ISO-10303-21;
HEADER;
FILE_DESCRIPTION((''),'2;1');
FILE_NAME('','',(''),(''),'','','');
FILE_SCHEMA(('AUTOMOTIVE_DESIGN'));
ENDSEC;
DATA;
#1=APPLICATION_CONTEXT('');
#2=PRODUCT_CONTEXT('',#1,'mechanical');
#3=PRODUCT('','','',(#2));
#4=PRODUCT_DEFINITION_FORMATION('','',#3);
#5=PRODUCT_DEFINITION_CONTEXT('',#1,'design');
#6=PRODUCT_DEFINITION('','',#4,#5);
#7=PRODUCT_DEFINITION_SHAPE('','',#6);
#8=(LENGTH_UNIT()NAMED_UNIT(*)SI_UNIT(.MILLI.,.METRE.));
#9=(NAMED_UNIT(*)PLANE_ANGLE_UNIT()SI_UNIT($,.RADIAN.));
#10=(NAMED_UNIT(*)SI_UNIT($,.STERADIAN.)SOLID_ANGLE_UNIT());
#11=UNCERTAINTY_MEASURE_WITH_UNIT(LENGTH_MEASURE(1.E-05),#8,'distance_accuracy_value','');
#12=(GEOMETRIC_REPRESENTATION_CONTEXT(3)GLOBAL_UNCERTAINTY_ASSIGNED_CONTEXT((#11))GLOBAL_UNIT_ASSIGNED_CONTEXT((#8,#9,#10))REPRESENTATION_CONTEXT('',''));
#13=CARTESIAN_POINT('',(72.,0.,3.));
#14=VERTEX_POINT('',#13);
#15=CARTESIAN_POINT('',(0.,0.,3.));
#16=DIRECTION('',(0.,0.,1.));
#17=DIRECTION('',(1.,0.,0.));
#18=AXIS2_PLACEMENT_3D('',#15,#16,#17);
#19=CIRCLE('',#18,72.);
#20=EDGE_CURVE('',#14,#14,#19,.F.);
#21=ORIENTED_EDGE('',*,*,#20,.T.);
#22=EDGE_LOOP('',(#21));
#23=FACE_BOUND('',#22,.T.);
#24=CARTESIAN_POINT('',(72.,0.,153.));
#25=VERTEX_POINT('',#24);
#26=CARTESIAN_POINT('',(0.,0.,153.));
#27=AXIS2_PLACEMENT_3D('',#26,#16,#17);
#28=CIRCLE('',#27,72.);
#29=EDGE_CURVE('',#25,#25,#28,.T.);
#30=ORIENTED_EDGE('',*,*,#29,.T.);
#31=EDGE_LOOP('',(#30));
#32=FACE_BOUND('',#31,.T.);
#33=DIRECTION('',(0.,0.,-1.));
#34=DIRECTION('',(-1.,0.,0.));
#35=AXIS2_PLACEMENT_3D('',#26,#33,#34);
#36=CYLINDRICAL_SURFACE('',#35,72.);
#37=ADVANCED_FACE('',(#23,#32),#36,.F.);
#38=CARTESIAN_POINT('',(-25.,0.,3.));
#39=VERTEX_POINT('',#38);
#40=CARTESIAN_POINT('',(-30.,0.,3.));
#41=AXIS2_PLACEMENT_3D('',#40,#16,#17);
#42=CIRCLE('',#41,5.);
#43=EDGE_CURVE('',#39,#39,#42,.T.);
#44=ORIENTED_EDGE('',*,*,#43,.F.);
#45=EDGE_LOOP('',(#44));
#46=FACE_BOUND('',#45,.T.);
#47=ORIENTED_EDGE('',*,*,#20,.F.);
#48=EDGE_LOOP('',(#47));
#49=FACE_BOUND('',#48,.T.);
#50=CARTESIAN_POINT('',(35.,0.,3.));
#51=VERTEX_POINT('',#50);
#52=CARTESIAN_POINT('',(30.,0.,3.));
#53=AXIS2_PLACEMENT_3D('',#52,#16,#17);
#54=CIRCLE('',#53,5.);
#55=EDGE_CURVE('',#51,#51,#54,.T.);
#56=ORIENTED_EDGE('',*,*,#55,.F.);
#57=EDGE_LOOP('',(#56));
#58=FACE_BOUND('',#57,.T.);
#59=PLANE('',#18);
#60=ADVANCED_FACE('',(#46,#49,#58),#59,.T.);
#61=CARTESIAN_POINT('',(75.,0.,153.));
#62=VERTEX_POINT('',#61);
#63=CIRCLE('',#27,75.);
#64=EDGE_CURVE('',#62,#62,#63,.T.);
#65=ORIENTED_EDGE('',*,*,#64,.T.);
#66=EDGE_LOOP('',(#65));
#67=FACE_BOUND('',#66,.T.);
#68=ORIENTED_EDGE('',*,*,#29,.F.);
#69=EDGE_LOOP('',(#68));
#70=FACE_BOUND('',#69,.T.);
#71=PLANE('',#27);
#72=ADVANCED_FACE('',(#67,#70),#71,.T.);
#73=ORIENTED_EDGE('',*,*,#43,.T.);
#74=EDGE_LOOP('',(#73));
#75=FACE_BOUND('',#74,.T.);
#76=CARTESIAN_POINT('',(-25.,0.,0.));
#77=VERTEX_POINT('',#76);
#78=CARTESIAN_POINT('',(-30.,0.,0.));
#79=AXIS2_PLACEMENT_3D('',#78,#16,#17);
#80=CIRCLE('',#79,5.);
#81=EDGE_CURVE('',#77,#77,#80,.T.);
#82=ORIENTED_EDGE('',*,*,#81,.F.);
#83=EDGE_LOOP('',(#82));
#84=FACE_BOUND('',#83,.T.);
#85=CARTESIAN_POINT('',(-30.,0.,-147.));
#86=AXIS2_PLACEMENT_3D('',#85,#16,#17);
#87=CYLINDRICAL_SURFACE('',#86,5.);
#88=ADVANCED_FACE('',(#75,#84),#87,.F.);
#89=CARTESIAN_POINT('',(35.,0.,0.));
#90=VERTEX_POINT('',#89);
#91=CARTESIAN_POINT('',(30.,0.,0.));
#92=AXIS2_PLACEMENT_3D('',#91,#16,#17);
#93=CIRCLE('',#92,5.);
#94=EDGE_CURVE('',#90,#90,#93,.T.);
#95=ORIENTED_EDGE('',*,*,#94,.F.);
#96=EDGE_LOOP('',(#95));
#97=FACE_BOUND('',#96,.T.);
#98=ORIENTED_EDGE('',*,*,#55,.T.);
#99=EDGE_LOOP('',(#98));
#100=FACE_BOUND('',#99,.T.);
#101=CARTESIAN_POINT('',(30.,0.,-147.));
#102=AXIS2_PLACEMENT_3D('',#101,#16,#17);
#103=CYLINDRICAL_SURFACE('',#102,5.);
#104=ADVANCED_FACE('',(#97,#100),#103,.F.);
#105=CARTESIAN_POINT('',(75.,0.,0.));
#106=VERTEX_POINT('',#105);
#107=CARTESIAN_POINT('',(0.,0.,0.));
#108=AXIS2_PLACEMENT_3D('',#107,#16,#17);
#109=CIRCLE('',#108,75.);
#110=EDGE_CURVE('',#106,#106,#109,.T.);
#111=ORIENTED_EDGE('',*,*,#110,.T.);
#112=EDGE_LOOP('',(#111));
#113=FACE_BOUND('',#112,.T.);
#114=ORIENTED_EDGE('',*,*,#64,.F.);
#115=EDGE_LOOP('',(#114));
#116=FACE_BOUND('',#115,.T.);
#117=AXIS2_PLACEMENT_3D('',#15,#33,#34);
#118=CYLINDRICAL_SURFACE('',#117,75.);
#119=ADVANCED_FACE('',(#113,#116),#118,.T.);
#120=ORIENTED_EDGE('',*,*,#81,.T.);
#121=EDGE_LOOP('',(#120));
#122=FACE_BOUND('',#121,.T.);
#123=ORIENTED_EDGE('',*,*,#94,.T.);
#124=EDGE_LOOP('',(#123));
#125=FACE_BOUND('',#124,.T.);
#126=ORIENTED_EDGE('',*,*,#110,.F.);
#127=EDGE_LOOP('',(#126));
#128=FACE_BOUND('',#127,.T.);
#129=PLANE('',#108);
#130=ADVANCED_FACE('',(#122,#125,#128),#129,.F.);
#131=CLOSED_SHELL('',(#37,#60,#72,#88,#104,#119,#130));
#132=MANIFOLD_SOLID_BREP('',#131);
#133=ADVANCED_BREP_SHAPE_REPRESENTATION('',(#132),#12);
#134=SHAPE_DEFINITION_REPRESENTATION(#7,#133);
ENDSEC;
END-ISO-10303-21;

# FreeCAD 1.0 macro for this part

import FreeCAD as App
import Part
import Sketcher

doc = App.newDocument("Part")
body = doc.addObject("PartDesign::Body", "Body")

sketch1 = body.newObject("Sketcher::SketchObject", "Sketch")
sketch1.AttachmentSupport = (doc.getObject("XY_Plane"), [""])
sketch1.MapMode = "FlatFace"
sketch1.addGeometry(Part.Circle(App.Vector(0, 0, 0), App.Vector(0, 0, 1), 75), False)
sketch1.addConstraint(Sketcher.Constraint("Coincident", 0, 3, -1, 1))
sketch1.addConstraint(Sketcher.Constraint("Diameter", 0, 150.0))
pad1 = body.newObject("PartDesign::Pad", "Pad")
pad1.Profile = sketch1
pad1.Length = 3

sketch2 = body.newObject("Sketcher::SketchObject", "Sketch001")
sketch2.AttachmentSupport = (doc.getObject("XY_Plane"), [""])
sketch2.MapMode = "FlatFace"
sketch2.AttachmentOffset = App.Placement(App.Vector(0, 0, 3), App.Rotation())
sketch2.addGeometry(Part.Circle(App.Vector(0, 0, 0), App.Vector(0, 0, 1), 75), False)
sketch2.addGeometry(Part.Circle(App.Vector(0, 0, 0), App.Vector(0, 0, 1), 72), False)
sketch2.addConstraint(Sketcher.Constraint("Coincident", 0, 3, -1, 1))
sketch2.addConstraint(Sketcher.Constraint("Coincident", 1, 3, -1, 1))
sketch2.addConstraint(Sketcher.Constraint("Diameter", 0, 150.0))
sketch2.addConstraint(Sketcher.Constraint("Diameter", 1, 144.0))
pad2 = body.newObject("PartDesign::Pad", "Pad001")
pad2.Profile = sketch2
pad2.Length = 150

sketch3 = body.newObject("Sketcher::SketchObject", "Sketch002")
sketch3.AttachmentSupport = (doc.getObject("XY_Plane"), [""])
sketch3.MapMode = "FlatFace"
sketch3.AttachmentOffset = App.Placement(App.Vector(0, 0, 3), App.Rotation())
sketch3.addGeometry(Part.Circle(App.Vector(30, 0, 0), App.Vector(0, 0, 1), 5), False)
sketch3.addGeometry(Part.Circle(App.Vector(-30, 0, 0), App.Vector(0, 0, 1), 5), False)
sketch3.addConstraint(Sketcher.Constraint("Equal", 0, 1))
sketch3.addConstraint(Sketcher.Constraint("Symmetric", 0, 3, 1, 3, -1, 1))
sketch3.addConstraint(Sketcher.Constraint("PointOnObject", 0, 3, -1))
sketch3.addConstraint(Sketcher.Constraint("Diameter", 0, 10.0))
sketch3.addConstraint(Sketcher.Constraint("DistanceX", -1, 1, 0, 3, 30.0))
pocket1 = body.newObject("PartDesign::Pocket", "Pocket")
pocket1.Profile = sketch3
pocket1.Length = 150

doc.recompute()
